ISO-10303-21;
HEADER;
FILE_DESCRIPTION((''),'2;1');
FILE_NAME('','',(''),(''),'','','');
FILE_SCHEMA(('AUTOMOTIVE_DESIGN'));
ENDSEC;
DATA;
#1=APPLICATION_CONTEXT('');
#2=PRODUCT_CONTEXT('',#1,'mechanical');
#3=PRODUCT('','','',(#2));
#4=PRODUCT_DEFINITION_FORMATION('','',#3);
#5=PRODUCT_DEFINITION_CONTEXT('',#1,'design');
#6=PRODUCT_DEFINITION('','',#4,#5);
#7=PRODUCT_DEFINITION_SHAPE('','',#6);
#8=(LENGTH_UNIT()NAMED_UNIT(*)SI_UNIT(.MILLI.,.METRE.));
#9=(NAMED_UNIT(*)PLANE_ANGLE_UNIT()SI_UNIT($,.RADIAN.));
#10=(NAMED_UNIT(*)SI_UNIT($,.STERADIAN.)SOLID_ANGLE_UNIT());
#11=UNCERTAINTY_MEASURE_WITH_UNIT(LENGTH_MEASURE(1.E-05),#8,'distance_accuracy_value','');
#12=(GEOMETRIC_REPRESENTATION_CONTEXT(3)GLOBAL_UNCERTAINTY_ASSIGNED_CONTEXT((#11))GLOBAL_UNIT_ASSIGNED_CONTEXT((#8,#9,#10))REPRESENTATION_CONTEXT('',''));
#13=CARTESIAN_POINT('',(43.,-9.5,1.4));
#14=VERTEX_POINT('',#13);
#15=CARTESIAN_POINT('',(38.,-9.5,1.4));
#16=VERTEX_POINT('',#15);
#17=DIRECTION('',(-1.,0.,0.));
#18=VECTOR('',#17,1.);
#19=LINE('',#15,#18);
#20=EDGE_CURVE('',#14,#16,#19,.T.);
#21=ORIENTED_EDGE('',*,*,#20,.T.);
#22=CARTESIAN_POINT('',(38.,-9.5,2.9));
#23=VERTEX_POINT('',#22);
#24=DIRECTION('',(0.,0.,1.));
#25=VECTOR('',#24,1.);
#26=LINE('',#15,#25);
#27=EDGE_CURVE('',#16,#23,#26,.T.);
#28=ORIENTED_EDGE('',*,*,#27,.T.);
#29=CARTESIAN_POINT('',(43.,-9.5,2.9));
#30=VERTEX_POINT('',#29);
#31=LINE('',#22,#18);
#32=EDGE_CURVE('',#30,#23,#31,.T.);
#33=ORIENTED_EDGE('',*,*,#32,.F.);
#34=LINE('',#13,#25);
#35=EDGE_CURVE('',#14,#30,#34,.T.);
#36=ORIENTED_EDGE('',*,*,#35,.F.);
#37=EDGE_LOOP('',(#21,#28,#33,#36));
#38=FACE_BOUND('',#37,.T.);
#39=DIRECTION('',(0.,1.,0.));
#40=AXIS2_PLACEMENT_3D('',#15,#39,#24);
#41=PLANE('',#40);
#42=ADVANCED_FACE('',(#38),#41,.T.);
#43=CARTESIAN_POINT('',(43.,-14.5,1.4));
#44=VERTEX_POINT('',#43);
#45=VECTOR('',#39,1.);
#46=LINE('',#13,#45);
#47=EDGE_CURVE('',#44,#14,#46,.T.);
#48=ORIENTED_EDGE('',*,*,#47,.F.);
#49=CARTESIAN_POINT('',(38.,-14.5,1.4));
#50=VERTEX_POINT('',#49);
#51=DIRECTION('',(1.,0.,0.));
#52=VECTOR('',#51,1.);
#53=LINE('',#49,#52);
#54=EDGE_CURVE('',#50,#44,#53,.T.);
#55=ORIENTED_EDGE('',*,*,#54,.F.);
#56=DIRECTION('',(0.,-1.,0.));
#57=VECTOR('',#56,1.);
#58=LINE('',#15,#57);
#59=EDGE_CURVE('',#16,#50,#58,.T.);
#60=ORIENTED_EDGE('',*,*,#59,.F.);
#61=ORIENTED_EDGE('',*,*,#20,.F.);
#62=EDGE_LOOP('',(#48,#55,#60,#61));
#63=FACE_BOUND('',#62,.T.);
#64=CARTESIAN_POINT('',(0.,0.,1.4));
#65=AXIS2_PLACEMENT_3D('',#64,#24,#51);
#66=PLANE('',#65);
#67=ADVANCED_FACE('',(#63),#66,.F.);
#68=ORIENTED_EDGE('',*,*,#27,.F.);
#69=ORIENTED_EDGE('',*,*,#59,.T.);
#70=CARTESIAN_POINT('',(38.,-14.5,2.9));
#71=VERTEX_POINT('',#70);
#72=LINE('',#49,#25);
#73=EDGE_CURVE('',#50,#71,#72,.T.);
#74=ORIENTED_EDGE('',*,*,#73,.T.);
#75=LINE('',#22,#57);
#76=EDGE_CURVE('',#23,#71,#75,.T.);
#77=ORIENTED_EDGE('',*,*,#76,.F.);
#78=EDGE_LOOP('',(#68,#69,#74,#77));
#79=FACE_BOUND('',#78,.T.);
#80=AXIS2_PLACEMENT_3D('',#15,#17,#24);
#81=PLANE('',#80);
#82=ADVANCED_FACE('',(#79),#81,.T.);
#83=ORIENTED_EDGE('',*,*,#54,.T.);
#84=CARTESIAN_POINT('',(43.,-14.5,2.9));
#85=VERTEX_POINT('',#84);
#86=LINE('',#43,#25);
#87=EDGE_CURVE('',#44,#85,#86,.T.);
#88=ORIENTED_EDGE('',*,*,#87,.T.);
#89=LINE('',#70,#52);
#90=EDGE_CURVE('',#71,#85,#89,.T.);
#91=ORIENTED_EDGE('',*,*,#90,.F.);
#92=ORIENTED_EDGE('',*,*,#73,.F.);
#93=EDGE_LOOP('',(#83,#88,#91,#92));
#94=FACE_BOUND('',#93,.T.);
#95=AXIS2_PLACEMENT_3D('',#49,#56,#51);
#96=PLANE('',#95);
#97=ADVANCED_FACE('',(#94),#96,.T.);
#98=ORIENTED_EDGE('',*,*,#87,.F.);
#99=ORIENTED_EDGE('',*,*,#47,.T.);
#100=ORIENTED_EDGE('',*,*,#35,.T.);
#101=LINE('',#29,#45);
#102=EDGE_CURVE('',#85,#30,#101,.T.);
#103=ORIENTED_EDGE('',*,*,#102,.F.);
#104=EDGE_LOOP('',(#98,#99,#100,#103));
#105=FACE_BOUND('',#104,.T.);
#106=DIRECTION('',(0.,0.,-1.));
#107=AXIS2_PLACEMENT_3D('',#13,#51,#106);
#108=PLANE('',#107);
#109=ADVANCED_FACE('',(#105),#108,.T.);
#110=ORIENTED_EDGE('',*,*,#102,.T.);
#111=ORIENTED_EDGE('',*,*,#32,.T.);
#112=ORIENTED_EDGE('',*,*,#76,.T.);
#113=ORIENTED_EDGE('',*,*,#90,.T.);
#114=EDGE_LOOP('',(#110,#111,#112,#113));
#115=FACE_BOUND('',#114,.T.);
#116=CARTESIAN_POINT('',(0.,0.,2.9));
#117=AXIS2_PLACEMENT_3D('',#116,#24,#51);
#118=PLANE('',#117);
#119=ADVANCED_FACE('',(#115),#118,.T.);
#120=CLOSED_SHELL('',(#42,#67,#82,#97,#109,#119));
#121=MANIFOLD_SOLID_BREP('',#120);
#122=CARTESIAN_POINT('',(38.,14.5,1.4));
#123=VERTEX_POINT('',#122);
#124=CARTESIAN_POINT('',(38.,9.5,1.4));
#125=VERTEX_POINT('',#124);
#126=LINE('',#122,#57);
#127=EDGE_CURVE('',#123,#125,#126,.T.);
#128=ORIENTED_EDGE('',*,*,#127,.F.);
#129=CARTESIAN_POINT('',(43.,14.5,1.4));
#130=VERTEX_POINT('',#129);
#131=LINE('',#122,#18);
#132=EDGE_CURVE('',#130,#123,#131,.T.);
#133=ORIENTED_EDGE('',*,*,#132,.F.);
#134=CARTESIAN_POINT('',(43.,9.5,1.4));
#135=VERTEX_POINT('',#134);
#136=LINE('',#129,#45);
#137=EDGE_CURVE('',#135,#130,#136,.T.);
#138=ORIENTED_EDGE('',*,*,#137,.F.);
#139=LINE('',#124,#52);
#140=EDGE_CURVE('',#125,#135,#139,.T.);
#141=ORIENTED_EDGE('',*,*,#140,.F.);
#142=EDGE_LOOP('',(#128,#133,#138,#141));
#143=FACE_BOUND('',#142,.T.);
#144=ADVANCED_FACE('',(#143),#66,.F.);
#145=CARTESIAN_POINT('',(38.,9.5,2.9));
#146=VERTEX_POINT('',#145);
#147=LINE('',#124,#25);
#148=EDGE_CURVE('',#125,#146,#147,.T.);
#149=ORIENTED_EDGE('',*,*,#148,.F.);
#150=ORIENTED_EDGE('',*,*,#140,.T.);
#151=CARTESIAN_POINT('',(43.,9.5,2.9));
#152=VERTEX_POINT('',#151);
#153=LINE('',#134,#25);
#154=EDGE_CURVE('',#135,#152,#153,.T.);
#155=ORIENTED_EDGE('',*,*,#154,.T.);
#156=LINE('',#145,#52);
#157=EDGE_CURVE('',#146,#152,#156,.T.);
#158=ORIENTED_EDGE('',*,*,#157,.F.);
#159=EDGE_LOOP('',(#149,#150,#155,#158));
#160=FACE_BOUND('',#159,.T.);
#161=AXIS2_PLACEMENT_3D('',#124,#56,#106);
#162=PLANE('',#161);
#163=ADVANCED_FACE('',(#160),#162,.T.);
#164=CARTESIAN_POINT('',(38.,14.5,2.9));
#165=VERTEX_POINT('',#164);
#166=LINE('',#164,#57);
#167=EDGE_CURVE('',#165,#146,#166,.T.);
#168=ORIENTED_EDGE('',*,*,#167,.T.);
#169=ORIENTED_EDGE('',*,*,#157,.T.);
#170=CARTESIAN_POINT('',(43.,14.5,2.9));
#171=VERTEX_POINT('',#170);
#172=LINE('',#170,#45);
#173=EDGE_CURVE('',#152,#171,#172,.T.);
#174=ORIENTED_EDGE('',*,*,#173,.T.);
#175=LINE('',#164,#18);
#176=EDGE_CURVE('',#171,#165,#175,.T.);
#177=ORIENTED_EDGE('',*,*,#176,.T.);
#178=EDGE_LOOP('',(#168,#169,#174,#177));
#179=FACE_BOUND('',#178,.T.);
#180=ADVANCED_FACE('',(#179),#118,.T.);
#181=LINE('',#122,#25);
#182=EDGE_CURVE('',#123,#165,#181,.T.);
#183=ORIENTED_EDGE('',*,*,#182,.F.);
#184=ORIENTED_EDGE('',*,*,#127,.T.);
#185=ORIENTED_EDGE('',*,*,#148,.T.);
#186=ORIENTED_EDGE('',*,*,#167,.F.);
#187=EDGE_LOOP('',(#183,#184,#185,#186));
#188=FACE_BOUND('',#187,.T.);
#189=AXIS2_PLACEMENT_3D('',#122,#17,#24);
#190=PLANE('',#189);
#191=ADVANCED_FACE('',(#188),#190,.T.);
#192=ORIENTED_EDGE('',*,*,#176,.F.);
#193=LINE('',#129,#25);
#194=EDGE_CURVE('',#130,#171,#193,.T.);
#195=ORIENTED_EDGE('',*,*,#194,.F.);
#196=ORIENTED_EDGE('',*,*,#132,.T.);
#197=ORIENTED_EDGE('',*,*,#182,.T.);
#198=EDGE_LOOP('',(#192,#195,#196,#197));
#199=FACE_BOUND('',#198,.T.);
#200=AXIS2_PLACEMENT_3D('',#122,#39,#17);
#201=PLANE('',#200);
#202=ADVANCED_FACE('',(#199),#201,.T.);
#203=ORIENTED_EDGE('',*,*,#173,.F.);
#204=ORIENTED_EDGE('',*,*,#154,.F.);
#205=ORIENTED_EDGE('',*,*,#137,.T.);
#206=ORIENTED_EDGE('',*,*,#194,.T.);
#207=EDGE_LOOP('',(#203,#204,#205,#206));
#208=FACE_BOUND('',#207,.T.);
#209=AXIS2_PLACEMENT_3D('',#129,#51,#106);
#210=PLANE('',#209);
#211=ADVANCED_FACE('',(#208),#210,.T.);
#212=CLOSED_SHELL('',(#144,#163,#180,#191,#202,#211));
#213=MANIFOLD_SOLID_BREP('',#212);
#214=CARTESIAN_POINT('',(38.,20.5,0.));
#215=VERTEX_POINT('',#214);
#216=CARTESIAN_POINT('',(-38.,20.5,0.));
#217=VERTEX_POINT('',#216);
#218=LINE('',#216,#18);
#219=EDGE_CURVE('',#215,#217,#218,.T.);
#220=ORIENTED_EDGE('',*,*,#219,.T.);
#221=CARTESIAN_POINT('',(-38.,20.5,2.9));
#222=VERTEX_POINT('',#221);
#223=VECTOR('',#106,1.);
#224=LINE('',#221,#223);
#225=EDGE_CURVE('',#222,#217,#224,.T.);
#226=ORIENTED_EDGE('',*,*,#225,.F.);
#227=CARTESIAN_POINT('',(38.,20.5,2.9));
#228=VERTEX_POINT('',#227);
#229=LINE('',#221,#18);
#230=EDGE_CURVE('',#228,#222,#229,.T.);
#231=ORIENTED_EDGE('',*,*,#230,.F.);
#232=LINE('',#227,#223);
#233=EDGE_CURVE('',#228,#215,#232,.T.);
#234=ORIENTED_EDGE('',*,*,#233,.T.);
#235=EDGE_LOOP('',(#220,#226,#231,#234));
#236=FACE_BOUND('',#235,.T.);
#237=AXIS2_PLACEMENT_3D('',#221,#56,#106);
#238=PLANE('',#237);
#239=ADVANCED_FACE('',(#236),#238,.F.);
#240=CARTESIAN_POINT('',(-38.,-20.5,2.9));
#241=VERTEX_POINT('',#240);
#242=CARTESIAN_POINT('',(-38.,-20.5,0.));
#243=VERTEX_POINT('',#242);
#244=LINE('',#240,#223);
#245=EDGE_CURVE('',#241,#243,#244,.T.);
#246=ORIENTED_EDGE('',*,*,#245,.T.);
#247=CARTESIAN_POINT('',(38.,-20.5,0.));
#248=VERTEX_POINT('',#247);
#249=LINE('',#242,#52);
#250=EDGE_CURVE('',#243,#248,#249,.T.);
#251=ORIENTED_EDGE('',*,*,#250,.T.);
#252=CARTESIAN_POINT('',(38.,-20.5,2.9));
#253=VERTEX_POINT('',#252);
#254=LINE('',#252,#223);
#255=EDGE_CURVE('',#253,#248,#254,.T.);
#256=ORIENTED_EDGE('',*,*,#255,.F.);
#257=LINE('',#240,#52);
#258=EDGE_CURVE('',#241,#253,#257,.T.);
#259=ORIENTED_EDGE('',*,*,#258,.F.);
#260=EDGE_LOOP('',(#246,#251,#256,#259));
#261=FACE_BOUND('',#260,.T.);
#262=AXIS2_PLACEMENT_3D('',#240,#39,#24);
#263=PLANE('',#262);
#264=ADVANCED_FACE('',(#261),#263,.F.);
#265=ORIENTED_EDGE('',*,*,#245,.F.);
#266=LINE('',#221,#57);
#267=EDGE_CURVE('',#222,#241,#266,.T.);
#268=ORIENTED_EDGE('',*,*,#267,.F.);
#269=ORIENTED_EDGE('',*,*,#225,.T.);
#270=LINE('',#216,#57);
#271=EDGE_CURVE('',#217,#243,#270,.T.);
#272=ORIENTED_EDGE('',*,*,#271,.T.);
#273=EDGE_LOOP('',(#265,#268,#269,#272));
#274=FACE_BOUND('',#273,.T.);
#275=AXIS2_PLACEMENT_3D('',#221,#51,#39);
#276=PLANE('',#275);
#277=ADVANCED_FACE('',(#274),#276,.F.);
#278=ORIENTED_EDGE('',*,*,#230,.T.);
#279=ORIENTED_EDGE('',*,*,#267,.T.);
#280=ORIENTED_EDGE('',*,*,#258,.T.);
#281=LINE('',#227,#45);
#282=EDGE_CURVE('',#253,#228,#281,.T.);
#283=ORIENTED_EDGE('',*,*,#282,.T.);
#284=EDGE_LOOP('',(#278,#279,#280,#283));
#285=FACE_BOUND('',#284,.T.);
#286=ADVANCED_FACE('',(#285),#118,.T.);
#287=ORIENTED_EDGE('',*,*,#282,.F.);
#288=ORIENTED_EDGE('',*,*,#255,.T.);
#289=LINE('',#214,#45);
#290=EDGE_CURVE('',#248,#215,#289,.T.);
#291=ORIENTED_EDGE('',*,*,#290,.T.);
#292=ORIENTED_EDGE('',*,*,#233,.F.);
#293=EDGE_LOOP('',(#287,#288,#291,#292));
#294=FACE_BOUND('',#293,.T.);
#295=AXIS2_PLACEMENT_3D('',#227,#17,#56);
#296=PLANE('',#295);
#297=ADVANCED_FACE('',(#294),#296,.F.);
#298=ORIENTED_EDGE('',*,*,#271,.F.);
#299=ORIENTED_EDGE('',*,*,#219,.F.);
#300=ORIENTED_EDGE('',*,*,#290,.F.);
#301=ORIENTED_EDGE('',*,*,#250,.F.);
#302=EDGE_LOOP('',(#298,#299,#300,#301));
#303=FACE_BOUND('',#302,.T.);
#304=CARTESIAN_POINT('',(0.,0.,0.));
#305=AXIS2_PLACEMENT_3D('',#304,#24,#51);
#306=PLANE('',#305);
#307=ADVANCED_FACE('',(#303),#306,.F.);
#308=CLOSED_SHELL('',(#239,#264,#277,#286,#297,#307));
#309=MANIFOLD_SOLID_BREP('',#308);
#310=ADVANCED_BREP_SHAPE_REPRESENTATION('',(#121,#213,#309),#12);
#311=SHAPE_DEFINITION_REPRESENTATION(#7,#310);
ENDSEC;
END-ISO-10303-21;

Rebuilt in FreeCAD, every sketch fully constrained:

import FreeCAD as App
import Part
import Sketcher
from FreeCAD import Vector
Q = App.Units.Quantity

doc = App.newDocument("Part")
body = doc.addObject("PartDesign::Body", "Body")

# Sketch on XY plane
sketch1 = body.newObject("Sketcher::SketchObject", "Sketch")
sketch1.AttachmentSupport = (doc.getObject("XY_Plane"), [""])
sketch1.MapMode = "FlatFace"
sketch1.addGeometry([
    Part.LineSegment(Vector(-38, 20, 0), Vector(-38, -20, 0)),
    Part.LineSegment(Vector(-38, -20, 0), Vector(38, -20, 0)),
    Part.LineSegment(Vector(38, -20, 0), Vector(38, 20, 0)),
    Part.LineSegment(Vector(38, 20, 0), Vector(-38, 20, 0)),
], False)
sketch1.addConstraint([
    Sketcher.Constraint("Coincident", 0, 2, 1, 1),
    Sketcher.Constraint("Coincident", 1, 2, 2, 1),
    Sketcher.Constraint("Coincident", 2, 2, 3, 1),
    Sketcher.Constraint("Coincident", 3, 2, 0, 1),
    Sketcher.Constraint("Vertical", 0),
    Sketcher.Constraint("Horizontal", 1),
    Sketcher.Constraint("Vertical", 2),
    Sketcher.Constraint("Horizontal", 3),
    Sketcher.Constraint("Symmetric", 0, 2, 2, 2, -1, 1),
    Sketcher.Constraint("DistanceX", 1, 1, 1, 2, Q("76 mm")),
    Sketcher.Constraint("DistanceY", 0, 2, 0, 1, Q("41 mm")),
])
pad1 = body.newObject("PartDesign::Pad", "Pad")
pad1.Profile = sketch1
pad1.Length = 2.9
body2 = doc.addObject("PartDesign::Body", "Body001")

# Sketch on XY plane
sketch2 = body2.newObject("Sketcher::SketchObject", "Sketch001")
sketch2.AttachmentSupport = (doc.getObject("XY_Plane001"), [""])
sketch2.MapMode = "FlatFace"
sketch2.AttachmentOffset = App.Placement(Vector(0, 0, 2.9), App.Rotation())
sketch2.addGeometry([
    Part.LineSegment(Vector(38, 14, 0), Vector(38, 10, 0)),
    Part.LineSegment(Vector(38, 10, 0), Vector(43, 10, 0)),
    Part.LineSegment(Vector(43, 10, 0), Vector(43, 14, 0)),
    Part.LineSegment(Vector(43, 14, 0), Vector(38, 14, 0)),
], False)
sketch2.addConstraint([
    Sketcher.Constraint("Coincident", 0, 2, 1, 1),
    Sketcher.Constraint("Coincident", 1, 2, 2, 1),
    Sketcher.Constraint("Coincident", 2, 2, 3, 1),
    Sketcher.Constraint("Coincident", 3, 2, 0, 1),
    Sketcher.Constraint("Vertical", 0),
    Sketcher.Constraint("Horizontal", 1),
    Sketcher.Constraint("Vertical", 2),
    Sketcher.Constraint("Horizontal", 3),
    Sketcher.Constraint("Equal", 3, 0),
    Sketcher.Constraint("DistanceX", 1, 1, 1, 2, Q("5 mm")),
    Sketcher.Constraint("DistanceX", -1, 1, 0, 2, Q("38 mm")),
    Sketcher.Constraint("DistanceY", -1, 1, 0, 2, Q("9.5 mm")),
])
pad2 = body2.newObject("PartDesign::Pad", "Pad001")
pad2.Profile = sketch2
pad2.Length = 1.5
pad2.Reversed = True
body3 = doc.addObject("PartDesign::Body", "Body002")

# Sketch on XY plane
sketch3 = body3.newObject("Sketcher::SketchObject", "Sketch002")
sketch3.AttachmentSupport = (doc.getObject("XY_Plane002"), [""])
sketch3.MapMode = "FlatFace"
sketch3.AttachmentOffset = App.Placement(Vector(0, 0, 2.9), App.Rotation())
sketch3.addGeometry([
    Part.LineSegment(Vector(38, -10, 0), Vector(38, -14, 0)),
    Part.LineSegment(Vector(38, -14, 0), Vector(43, -14, 0)),
    Part.LineSegment(Vector(43, -14, 0), Vector(43, -10, 0)),
    Part.LineSegment(Vector(43, -10, 0), Vector(38, -10, 0)),
], False)
sketch3.addConstraint([
    Sketcher.Constraint("Coincident", 0, 2, 1, 1),
    Sketcher.Constraint("Coincident", 1, 2, 2, 1),
    Sketcher.Constraint("Coincident", 2, 2, 3, 1),
    Sketcher.Constraint("Coincident", 3, 2, 0, 1),
    Sketcher.Constraint("Vertical", 0),
    Sketcher.Constraint("Horizontal", 1),
    Sketcher.Constraint("Vertical", 2),
    Sketcher.Constraint("Horizontal", 3),
    Sketcher.Constraint("Equal", 3, 0),
    Sketcher.Constraint("DistanceX", 1, 1, 1, 2, Q("5 mm")),
    Sketcher.Constraint("DistanceX", -1, 1, 0, 2, Q("38 mm")),
    Sketcher.Constraint("DistanceY", 0, 2, -1, 1, Q("14.5 mm")),
])
pad3 = body3.newObject("PartDesign::Pad", "Pad002")
pad3.Profile = sketch3
pad3.Length = 1.5
pad3.Reversed = True

doc.recompute()
